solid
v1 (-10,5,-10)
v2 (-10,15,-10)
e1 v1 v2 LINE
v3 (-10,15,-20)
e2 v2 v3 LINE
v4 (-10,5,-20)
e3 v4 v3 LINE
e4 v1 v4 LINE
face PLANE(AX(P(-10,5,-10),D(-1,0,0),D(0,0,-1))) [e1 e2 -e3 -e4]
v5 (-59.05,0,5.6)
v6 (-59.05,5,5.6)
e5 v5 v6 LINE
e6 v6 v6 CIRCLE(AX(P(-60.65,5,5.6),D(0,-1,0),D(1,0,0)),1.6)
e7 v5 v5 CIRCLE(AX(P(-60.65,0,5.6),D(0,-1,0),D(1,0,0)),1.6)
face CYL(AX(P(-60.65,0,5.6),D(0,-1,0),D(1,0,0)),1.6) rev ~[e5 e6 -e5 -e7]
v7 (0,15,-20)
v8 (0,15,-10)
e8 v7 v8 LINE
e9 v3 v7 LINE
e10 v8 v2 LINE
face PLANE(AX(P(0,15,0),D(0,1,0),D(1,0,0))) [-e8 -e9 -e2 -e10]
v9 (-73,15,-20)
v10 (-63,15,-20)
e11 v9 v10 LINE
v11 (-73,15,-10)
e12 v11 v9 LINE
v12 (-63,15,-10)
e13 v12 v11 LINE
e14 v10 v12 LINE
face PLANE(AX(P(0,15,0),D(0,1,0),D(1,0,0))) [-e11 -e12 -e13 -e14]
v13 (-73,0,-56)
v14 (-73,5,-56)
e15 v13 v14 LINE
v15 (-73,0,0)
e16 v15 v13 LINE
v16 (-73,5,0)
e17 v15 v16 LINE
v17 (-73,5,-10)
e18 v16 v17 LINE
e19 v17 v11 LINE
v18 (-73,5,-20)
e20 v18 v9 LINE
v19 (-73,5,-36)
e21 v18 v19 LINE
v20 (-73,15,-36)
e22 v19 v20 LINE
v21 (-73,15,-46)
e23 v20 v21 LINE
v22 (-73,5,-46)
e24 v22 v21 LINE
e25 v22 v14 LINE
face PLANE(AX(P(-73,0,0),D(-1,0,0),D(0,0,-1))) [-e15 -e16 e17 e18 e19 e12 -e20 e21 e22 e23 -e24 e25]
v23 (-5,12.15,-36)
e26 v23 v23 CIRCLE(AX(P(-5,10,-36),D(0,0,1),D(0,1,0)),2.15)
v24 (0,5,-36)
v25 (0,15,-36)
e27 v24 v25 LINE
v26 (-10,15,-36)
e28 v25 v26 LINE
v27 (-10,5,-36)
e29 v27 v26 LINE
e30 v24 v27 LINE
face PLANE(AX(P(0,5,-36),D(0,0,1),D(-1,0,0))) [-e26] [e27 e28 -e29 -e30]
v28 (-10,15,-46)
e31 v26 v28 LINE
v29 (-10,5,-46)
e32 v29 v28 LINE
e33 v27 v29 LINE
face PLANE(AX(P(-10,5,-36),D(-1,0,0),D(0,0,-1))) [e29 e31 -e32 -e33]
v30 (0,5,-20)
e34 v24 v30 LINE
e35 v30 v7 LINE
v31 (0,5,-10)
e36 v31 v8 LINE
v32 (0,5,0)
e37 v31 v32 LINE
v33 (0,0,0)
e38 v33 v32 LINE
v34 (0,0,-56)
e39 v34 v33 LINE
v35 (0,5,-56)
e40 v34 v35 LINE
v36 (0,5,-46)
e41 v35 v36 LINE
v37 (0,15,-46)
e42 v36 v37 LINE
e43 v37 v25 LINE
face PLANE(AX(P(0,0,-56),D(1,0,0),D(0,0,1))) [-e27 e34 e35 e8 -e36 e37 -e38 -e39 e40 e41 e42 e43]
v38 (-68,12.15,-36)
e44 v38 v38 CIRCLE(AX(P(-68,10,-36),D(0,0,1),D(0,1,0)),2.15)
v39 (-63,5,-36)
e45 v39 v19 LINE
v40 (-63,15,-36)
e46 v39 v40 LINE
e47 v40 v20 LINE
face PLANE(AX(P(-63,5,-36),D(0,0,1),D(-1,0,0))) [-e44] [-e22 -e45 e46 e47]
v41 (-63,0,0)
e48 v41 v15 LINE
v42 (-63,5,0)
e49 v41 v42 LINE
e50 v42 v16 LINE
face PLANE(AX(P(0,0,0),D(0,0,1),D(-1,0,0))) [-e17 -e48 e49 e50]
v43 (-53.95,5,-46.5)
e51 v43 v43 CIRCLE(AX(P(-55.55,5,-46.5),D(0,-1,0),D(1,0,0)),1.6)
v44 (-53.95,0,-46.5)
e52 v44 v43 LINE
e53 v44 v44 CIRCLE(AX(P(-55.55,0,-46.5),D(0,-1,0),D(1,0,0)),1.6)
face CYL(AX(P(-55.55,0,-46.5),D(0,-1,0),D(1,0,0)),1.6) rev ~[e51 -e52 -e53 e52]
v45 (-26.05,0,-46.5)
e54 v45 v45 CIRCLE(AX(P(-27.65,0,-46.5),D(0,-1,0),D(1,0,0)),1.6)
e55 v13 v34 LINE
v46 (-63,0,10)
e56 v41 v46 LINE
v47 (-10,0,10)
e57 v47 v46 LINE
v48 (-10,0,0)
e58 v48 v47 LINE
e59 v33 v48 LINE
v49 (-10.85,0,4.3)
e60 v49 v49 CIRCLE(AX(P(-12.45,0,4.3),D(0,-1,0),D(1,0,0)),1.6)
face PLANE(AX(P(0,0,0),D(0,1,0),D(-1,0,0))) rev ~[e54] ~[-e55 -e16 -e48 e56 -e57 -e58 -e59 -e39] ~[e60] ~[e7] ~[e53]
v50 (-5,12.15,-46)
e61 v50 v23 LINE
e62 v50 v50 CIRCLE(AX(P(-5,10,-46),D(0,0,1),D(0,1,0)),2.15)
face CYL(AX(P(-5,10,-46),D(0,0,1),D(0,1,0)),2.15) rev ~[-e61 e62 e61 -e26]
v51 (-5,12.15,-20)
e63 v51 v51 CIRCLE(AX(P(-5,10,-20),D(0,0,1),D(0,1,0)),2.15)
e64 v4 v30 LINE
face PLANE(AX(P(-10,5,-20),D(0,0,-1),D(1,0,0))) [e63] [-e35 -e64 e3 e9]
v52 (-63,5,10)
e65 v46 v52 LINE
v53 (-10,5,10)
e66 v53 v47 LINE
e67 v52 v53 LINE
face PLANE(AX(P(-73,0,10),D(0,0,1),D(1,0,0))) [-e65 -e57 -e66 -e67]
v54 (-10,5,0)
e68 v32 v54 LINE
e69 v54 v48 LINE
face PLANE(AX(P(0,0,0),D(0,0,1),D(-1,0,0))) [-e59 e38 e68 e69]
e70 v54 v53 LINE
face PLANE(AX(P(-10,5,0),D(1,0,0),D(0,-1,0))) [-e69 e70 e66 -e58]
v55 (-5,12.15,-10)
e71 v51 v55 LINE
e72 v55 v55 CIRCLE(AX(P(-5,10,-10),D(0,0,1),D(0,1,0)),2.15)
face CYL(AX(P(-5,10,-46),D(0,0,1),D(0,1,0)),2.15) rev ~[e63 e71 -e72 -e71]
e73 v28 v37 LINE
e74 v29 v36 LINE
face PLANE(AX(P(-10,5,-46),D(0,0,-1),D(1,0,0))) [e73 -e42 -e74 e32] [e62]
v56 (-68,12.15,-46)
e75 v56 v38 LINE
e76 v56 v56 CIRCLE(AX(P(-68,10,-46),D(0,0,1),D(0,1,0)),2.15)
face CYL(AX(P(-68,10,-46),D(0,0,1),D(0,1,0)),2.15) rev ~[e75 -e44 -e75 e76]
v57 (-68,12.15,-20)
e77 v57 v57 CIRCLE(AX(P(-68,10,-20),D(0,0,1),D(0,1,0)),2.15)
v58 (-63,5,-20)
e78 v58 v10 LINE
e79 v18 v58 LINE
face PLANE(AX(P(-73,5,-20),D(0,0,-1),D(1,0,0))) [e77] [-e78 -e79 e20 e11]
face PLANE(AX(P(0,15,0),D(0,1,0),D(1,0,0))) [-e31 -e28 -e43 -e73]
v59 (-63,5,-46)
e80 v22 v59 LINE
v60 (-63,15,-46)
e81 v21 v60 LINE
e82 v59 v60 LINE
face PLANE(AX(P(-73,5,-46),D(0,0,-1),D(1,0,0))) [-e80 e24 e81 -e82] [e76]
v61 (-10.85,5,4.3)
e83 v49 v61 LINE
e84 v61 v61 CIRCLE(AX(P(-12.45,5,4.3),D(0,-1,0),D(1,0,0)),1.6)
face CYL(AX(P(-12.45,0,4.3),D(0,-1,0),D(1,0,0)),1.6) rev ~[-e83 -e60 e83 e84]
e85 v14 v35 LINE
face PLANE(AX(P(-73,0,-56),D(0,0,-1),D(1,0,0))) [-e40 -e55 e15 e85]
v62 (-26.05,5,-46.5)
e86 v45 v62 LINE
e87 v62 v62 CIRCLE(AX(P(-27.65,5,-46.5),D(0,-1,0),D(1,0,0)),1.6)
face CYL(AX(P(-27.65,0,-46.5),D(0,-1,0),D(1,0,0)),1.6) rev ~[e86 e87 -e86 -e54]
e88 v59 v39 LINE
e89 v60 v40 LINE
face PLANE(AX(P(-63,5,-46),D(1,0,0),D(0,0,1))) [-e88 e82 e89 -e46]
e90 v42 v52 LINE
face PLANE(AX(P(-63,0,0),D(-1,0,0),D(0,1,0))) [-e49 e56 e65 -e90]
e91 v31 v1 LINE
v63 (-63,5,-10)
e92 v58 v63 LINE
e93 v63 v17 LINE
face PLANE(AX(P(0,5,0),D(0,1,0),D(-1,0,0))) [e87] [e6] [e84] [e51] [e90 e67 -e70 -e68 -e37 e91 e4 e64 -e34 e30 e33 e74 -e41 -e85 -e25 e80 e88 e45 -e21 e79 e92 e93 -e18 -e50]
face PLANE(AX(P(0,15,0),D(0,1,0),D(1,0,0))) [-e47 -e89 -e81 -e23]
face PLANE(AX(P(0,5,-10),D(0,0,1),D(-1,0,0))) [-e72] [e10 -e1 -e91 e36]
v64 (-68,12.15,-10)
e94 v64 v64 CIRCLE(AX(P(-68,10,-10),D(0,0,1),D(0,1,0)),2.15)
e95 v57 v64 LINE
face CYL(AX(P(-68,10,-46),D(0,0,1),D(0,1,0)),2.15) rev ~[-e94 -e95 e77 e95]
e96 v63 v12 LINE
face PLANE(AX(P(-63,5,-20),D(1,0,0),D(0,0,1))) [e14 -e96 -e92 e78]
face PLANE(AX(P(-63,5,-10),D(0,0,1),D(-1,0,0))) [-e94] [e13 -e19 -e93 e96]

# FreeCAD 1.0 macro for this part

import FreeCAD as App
import Part
import Sketcher
from FreeCAD import Vector


def add_polygon(sketch, points):
    """Adds a closed chain of lines whose ends are joined by coincident constraints."""
    first, n = sketch.GeometryCount, len(points)
    for a, b in zip(points, points[1:] + points[:1]):
        sketch.addGeometry(Part.LineSegment(App.Vector(*a, 0), App.Vector(*b, 0)), False)
    for i in range(n):
        sketch.addConstraint(Sketcher.Constraint("Coincident", first + i, 2, first + (i + 1) % n, 1))

doc = App.newDocument("Part")
body = doc.addObject("PartDesign::Body", "Body")

# Sketch on XZ plane
sketch1 = body.newObject("Sketcher::SketchObject", "Sketch")
sketch1.AttachmentSupport = (doc.getObject("XZ_Plane"), [""])
sketch1.MapMode = "FlatFace"
add_polygon(sketch1, [(-73, 0), (0, 0), (0, -56), (-73, -56)])  # lines 0-3
sketch1.addConstraint([
    Sketcher.Constraint("Horizontal", 0),
    Sketcher.Constraint("Vertical", 1),
    Sketcher.Constraint("Horizontal", 2),
    Sketcher.Constraint("Vertical", 3),
    Sketcher.Constraint("Coincident", 0, 2, -1, 1),
    Sketcher.Constraint("DistanceX", 0, 1, 0, 2, 73.0),
    Sketcher.Constraint("DistanceY", 1, 2, 1, 1, 56.0),
])
pad1 = body.newObject("PartDesign::Pad", "Pad")
pad1.Profile = sketch1
pad1.Length = 5
pad1.Reversed = True

# Sketch on XZ plane
sketch2 = body.newObject("Sketcher::SketchObject", "Sketch001")
sketch2.AttachmentSupport = (doc.getObject("XZ_Plane"), [""])
sketch2.MapMode = "FlatFace"
sketch2.AttachmentOffset = App.Placement(Vector(0, 0, -5), App.Rotation())
add_polygon(sketch2, [(-63, -46), (-73, -46), (-73, -36), (-63, -36)])  # lines 0-3
add_polygon(sketch2, [(-63, -20), (-73, -20), (-73, -10), (-63, -10)])  # lines 4-7
add_polygon(sketch2, [(0, -36), (0, -46), (-10, -46), (-10, -36)])  # lines 8-11
add_polygon(sketch2, [(0, -10), (0, -20), (-10, -20), (-10, -10)])  # lines 12-15
sketch2.addConstraint([
    Sketcher.Constraint("Horizontal", 0),
    Sketcher.Constraint("Vertical", 1),
    Sketcher.Constraint("Horizontal", 2),
    Sketcher.Constraint("Vertical", 3),
    Sketcher.Constraint("Horizontal", 4),
    Sketcher.Constraint("Vertical", 5),
    Sketcher.Constraint("Horizontal", 6),
    Sketcher.Constraint("Vertical", 7),
    Sketcher.Constraint("Vertical", 8),
    Sketcher.Constraint("Horizontal", 9),
    Sketcher.Constraint("Vertical", 10),
    Sketcher.Constraint("Horizontal", 11),
    Sketcher.Constraint("Vertical", 12),
    Sketcher.Constraint("Horizontal", 13),
    Sketcher.Constraint("Vertical", 14),
    Sketcher.Constraint("Horizontal", 15),
    Sketcher.Constraint("PointOnObject", 8, 2, -2),
    Sketcher.Constraint("PointOnObject", 12, 2, -2),
    Sketcher.Constraint("Horizontal", 3, 2, 8, 2),
    Sketcher.Constraint("Horizontal", 2, 2, 10, 2),
    Sketcher.Constraint("Horizontal", 7, 2, 12, 2),
    Sketcher.Constraint("Horizontal", 6, 2, 14, 2),
    Sketcher.Constraint("Vertical", 1, 2, 4, 2),
    Sketcher.Constraint("Vertical", 3, 2, 6, 2),
    Sketcher.Constraint("Vertical", 10, 2, 13, 2),
    Sketcher.Constraint("Equal", 6, 9),
    Sketcher.Constraint("Equal", 15, 1),
    Sketcher.Constraint("Equal", 3, 5),
    Sketcher.Constraint("DistanceX", 0, 2, 0, 1, 10.0),
    Sketcher.Constraint("DistanceY", 5, 2, -1, 1, 10.0),
    Sketcher.Constraint("DistanceX", 0, 2, -1, 1, 73.0),
    Sketcher.Constraint("DistanceY", 0, 2, -1, 1, 46.0),
])
pad2 = body.newObject("PartDesign::Pad", "Pad001")
pad2.Profile = sketch2
pad2.Length = 10
pad2.Reversed = True

# Sketch on XY plane
sketch3 = body.newObject("Sketcher::SketchObject", "Sketch002")
sketch3.AttachmentSupport = (doc.getObject("XY_Plane"), [""])
sketch3.MapMode = "FlatFace"
sketch3.AttachmentOffset = App.Placement(Vector(0, 0, -46), App.Rotation())
sketch3.addGeometry(Part.Circle(Vector(-68, 10, 0), Vector(0, 0, 1), 2.1), False)
sketch3.addConstraint([
    Sketcher.Constraint("Diameter", 0, 4.3),
    Sketcher.Constraint("DistanceX", 0, 3, -1, 1, 68.0),
    Sketcher.Constraint("DistanceY", -1, 1, 0, 3, 10.0),
])
doc.recompute()
hole = body.newObject("PartDesign::Hole", "Hole")
hole.Profile = sketch3
hole.ThreadType = "None"
hole.Diameter = 4.3
hole.DepthType = "ThroughAll"
hole.Reversed = True

# Sketch on XY plane
sketch4 = body.newObject("Sketcher::SketchObject", "Sketch003")
sketch4.AttachmentSupport = (doc.getObject("XY_Plane"), [""])
sketch4.MapMode = "FlatFace"
sketch4.AttachmentOffset = App.Placement(Vector(0, 0, -46), App.Rotation())
sketch4.addGeometry(Part.Circle(Vector(-5, 10, 0), Vector(0, 0, 1), 2.1), False)
sketch4.addConstraint([
    Sketcher.Constraint("Diameter", 0, 4.3),
    Sketcher.Constraint("DistanceX", 0, 3, -1, 1, 5.0),
    Sketcher.Constraint("DistanceY", -1, 1, 0, 3, 10.0),
])
doc.recompute()
hole2 = body.newObject("PartDesign::Hole", "Hole001")
hole2.Profile = sketch4
hole2.ThreadType = "None"
hole2.Diameter = 4.3
hole2.DepthType = "ThroughAll"
hole2.Reversed = True

# Sketch on XY plane
sketch5 = body.newObject("Sketcher::SketchObject", "Sketch004")
sketch5.AttachmentSupport = (doc.getObject("XY_Plane"), [""])
sketch5.MapMode = "FlatFace"
add_polygon(sketch5, [(-10, 5), (-63, 5), (-63, 0), (-10, 0)])  # lines 0-3
sketch5.addConstraint([
    Sketcher.Constraint("Horizontal", 0),
    Sketcher.Constraint("Vertical", 1),
    Sketcher.Constraint("Horizontal", 2),
    Sketcher.Constraint("Vertical", 3),
    Sketcher.Constraint("PointOnObject", 1, 2, -1),
    Sketcher.Constraint("DistanceX", 2, 2, -1, 1, 10.0),
    Sketcher.Constraint("DistanceX", 0, 2, 0, 1, 53.0),
    Sketcher.Constraint("DistanceY", 1, 2, 1, 1, 5.0),
])
pad3 = body.newObject("PartDesign::Pad", "Pad002")
pad3.Profile = sketch5
pad3.Length = 10

# Sketch on XZ plane
sketch6 = body.newObject("Sketcher::SketchObject", "Sketch005")
sketch6.AttachmentSupport = (doc.getObject("XZ_Plane"), [""])
sketch6.MapMode = "FlatFace"
sketch6.addGeometry([
    Part.Circle(Vector(-55.5, -46.5, 0), Vector(0, 0, 1), 1.6),
    Part.Circle(Vector(-27.6, -46.5, 0), Vector(0, 0, 1), 1.6),
    Part.Circle(Vector(-12.4, 4.3, 0), Vector(0, 0, 1), 1.6),
    Part.Circle(Vector(-60.6, 5.6, 0), Vector(0, 0, 1), 1.6),
], False)
sketch6.addConstraint([
    Sketcher.Constraint("Equal", 0, 1),
    Sketcher.Constraint("Equal", 1, 2),
    Sketcher.Constraint("Equal", 2, 3),
    Sketcher.Constraint("Horizontal", 0, 3, 1, 3),
    Sketcher.Constraint("Diameter", 0, 3.2),
    Sketcher.Constraint("DistanceX", 0, 3, 1, 3, 27.9),
    Sketcher.Constraint("DistanceX", 1, 3, 2, 3, 15.2),
    Sketcher.Constraint("DistanceX", 3, 3, 1, 3, 33.0),
    Sketcher.Constraint("DistanceY", 0, 3, -1, 1, 46.5),
    Sketcher.Constraint("DistanceY", -1, 1, 2, 3, 4.3),
    Sketcher.Constraint("DistanceY", -1, 1, 3, 3, 5.6),
    Sketcher.Constraint("DistanceX", 0, 3, -1, 1, 55.55),
])
pocket1 = body.newObject("PartDesign::Pocket", "Pocket")
pocket1.Profile = sketch6
pocket1.Type = "UpToFirst"

doc.recompute()
